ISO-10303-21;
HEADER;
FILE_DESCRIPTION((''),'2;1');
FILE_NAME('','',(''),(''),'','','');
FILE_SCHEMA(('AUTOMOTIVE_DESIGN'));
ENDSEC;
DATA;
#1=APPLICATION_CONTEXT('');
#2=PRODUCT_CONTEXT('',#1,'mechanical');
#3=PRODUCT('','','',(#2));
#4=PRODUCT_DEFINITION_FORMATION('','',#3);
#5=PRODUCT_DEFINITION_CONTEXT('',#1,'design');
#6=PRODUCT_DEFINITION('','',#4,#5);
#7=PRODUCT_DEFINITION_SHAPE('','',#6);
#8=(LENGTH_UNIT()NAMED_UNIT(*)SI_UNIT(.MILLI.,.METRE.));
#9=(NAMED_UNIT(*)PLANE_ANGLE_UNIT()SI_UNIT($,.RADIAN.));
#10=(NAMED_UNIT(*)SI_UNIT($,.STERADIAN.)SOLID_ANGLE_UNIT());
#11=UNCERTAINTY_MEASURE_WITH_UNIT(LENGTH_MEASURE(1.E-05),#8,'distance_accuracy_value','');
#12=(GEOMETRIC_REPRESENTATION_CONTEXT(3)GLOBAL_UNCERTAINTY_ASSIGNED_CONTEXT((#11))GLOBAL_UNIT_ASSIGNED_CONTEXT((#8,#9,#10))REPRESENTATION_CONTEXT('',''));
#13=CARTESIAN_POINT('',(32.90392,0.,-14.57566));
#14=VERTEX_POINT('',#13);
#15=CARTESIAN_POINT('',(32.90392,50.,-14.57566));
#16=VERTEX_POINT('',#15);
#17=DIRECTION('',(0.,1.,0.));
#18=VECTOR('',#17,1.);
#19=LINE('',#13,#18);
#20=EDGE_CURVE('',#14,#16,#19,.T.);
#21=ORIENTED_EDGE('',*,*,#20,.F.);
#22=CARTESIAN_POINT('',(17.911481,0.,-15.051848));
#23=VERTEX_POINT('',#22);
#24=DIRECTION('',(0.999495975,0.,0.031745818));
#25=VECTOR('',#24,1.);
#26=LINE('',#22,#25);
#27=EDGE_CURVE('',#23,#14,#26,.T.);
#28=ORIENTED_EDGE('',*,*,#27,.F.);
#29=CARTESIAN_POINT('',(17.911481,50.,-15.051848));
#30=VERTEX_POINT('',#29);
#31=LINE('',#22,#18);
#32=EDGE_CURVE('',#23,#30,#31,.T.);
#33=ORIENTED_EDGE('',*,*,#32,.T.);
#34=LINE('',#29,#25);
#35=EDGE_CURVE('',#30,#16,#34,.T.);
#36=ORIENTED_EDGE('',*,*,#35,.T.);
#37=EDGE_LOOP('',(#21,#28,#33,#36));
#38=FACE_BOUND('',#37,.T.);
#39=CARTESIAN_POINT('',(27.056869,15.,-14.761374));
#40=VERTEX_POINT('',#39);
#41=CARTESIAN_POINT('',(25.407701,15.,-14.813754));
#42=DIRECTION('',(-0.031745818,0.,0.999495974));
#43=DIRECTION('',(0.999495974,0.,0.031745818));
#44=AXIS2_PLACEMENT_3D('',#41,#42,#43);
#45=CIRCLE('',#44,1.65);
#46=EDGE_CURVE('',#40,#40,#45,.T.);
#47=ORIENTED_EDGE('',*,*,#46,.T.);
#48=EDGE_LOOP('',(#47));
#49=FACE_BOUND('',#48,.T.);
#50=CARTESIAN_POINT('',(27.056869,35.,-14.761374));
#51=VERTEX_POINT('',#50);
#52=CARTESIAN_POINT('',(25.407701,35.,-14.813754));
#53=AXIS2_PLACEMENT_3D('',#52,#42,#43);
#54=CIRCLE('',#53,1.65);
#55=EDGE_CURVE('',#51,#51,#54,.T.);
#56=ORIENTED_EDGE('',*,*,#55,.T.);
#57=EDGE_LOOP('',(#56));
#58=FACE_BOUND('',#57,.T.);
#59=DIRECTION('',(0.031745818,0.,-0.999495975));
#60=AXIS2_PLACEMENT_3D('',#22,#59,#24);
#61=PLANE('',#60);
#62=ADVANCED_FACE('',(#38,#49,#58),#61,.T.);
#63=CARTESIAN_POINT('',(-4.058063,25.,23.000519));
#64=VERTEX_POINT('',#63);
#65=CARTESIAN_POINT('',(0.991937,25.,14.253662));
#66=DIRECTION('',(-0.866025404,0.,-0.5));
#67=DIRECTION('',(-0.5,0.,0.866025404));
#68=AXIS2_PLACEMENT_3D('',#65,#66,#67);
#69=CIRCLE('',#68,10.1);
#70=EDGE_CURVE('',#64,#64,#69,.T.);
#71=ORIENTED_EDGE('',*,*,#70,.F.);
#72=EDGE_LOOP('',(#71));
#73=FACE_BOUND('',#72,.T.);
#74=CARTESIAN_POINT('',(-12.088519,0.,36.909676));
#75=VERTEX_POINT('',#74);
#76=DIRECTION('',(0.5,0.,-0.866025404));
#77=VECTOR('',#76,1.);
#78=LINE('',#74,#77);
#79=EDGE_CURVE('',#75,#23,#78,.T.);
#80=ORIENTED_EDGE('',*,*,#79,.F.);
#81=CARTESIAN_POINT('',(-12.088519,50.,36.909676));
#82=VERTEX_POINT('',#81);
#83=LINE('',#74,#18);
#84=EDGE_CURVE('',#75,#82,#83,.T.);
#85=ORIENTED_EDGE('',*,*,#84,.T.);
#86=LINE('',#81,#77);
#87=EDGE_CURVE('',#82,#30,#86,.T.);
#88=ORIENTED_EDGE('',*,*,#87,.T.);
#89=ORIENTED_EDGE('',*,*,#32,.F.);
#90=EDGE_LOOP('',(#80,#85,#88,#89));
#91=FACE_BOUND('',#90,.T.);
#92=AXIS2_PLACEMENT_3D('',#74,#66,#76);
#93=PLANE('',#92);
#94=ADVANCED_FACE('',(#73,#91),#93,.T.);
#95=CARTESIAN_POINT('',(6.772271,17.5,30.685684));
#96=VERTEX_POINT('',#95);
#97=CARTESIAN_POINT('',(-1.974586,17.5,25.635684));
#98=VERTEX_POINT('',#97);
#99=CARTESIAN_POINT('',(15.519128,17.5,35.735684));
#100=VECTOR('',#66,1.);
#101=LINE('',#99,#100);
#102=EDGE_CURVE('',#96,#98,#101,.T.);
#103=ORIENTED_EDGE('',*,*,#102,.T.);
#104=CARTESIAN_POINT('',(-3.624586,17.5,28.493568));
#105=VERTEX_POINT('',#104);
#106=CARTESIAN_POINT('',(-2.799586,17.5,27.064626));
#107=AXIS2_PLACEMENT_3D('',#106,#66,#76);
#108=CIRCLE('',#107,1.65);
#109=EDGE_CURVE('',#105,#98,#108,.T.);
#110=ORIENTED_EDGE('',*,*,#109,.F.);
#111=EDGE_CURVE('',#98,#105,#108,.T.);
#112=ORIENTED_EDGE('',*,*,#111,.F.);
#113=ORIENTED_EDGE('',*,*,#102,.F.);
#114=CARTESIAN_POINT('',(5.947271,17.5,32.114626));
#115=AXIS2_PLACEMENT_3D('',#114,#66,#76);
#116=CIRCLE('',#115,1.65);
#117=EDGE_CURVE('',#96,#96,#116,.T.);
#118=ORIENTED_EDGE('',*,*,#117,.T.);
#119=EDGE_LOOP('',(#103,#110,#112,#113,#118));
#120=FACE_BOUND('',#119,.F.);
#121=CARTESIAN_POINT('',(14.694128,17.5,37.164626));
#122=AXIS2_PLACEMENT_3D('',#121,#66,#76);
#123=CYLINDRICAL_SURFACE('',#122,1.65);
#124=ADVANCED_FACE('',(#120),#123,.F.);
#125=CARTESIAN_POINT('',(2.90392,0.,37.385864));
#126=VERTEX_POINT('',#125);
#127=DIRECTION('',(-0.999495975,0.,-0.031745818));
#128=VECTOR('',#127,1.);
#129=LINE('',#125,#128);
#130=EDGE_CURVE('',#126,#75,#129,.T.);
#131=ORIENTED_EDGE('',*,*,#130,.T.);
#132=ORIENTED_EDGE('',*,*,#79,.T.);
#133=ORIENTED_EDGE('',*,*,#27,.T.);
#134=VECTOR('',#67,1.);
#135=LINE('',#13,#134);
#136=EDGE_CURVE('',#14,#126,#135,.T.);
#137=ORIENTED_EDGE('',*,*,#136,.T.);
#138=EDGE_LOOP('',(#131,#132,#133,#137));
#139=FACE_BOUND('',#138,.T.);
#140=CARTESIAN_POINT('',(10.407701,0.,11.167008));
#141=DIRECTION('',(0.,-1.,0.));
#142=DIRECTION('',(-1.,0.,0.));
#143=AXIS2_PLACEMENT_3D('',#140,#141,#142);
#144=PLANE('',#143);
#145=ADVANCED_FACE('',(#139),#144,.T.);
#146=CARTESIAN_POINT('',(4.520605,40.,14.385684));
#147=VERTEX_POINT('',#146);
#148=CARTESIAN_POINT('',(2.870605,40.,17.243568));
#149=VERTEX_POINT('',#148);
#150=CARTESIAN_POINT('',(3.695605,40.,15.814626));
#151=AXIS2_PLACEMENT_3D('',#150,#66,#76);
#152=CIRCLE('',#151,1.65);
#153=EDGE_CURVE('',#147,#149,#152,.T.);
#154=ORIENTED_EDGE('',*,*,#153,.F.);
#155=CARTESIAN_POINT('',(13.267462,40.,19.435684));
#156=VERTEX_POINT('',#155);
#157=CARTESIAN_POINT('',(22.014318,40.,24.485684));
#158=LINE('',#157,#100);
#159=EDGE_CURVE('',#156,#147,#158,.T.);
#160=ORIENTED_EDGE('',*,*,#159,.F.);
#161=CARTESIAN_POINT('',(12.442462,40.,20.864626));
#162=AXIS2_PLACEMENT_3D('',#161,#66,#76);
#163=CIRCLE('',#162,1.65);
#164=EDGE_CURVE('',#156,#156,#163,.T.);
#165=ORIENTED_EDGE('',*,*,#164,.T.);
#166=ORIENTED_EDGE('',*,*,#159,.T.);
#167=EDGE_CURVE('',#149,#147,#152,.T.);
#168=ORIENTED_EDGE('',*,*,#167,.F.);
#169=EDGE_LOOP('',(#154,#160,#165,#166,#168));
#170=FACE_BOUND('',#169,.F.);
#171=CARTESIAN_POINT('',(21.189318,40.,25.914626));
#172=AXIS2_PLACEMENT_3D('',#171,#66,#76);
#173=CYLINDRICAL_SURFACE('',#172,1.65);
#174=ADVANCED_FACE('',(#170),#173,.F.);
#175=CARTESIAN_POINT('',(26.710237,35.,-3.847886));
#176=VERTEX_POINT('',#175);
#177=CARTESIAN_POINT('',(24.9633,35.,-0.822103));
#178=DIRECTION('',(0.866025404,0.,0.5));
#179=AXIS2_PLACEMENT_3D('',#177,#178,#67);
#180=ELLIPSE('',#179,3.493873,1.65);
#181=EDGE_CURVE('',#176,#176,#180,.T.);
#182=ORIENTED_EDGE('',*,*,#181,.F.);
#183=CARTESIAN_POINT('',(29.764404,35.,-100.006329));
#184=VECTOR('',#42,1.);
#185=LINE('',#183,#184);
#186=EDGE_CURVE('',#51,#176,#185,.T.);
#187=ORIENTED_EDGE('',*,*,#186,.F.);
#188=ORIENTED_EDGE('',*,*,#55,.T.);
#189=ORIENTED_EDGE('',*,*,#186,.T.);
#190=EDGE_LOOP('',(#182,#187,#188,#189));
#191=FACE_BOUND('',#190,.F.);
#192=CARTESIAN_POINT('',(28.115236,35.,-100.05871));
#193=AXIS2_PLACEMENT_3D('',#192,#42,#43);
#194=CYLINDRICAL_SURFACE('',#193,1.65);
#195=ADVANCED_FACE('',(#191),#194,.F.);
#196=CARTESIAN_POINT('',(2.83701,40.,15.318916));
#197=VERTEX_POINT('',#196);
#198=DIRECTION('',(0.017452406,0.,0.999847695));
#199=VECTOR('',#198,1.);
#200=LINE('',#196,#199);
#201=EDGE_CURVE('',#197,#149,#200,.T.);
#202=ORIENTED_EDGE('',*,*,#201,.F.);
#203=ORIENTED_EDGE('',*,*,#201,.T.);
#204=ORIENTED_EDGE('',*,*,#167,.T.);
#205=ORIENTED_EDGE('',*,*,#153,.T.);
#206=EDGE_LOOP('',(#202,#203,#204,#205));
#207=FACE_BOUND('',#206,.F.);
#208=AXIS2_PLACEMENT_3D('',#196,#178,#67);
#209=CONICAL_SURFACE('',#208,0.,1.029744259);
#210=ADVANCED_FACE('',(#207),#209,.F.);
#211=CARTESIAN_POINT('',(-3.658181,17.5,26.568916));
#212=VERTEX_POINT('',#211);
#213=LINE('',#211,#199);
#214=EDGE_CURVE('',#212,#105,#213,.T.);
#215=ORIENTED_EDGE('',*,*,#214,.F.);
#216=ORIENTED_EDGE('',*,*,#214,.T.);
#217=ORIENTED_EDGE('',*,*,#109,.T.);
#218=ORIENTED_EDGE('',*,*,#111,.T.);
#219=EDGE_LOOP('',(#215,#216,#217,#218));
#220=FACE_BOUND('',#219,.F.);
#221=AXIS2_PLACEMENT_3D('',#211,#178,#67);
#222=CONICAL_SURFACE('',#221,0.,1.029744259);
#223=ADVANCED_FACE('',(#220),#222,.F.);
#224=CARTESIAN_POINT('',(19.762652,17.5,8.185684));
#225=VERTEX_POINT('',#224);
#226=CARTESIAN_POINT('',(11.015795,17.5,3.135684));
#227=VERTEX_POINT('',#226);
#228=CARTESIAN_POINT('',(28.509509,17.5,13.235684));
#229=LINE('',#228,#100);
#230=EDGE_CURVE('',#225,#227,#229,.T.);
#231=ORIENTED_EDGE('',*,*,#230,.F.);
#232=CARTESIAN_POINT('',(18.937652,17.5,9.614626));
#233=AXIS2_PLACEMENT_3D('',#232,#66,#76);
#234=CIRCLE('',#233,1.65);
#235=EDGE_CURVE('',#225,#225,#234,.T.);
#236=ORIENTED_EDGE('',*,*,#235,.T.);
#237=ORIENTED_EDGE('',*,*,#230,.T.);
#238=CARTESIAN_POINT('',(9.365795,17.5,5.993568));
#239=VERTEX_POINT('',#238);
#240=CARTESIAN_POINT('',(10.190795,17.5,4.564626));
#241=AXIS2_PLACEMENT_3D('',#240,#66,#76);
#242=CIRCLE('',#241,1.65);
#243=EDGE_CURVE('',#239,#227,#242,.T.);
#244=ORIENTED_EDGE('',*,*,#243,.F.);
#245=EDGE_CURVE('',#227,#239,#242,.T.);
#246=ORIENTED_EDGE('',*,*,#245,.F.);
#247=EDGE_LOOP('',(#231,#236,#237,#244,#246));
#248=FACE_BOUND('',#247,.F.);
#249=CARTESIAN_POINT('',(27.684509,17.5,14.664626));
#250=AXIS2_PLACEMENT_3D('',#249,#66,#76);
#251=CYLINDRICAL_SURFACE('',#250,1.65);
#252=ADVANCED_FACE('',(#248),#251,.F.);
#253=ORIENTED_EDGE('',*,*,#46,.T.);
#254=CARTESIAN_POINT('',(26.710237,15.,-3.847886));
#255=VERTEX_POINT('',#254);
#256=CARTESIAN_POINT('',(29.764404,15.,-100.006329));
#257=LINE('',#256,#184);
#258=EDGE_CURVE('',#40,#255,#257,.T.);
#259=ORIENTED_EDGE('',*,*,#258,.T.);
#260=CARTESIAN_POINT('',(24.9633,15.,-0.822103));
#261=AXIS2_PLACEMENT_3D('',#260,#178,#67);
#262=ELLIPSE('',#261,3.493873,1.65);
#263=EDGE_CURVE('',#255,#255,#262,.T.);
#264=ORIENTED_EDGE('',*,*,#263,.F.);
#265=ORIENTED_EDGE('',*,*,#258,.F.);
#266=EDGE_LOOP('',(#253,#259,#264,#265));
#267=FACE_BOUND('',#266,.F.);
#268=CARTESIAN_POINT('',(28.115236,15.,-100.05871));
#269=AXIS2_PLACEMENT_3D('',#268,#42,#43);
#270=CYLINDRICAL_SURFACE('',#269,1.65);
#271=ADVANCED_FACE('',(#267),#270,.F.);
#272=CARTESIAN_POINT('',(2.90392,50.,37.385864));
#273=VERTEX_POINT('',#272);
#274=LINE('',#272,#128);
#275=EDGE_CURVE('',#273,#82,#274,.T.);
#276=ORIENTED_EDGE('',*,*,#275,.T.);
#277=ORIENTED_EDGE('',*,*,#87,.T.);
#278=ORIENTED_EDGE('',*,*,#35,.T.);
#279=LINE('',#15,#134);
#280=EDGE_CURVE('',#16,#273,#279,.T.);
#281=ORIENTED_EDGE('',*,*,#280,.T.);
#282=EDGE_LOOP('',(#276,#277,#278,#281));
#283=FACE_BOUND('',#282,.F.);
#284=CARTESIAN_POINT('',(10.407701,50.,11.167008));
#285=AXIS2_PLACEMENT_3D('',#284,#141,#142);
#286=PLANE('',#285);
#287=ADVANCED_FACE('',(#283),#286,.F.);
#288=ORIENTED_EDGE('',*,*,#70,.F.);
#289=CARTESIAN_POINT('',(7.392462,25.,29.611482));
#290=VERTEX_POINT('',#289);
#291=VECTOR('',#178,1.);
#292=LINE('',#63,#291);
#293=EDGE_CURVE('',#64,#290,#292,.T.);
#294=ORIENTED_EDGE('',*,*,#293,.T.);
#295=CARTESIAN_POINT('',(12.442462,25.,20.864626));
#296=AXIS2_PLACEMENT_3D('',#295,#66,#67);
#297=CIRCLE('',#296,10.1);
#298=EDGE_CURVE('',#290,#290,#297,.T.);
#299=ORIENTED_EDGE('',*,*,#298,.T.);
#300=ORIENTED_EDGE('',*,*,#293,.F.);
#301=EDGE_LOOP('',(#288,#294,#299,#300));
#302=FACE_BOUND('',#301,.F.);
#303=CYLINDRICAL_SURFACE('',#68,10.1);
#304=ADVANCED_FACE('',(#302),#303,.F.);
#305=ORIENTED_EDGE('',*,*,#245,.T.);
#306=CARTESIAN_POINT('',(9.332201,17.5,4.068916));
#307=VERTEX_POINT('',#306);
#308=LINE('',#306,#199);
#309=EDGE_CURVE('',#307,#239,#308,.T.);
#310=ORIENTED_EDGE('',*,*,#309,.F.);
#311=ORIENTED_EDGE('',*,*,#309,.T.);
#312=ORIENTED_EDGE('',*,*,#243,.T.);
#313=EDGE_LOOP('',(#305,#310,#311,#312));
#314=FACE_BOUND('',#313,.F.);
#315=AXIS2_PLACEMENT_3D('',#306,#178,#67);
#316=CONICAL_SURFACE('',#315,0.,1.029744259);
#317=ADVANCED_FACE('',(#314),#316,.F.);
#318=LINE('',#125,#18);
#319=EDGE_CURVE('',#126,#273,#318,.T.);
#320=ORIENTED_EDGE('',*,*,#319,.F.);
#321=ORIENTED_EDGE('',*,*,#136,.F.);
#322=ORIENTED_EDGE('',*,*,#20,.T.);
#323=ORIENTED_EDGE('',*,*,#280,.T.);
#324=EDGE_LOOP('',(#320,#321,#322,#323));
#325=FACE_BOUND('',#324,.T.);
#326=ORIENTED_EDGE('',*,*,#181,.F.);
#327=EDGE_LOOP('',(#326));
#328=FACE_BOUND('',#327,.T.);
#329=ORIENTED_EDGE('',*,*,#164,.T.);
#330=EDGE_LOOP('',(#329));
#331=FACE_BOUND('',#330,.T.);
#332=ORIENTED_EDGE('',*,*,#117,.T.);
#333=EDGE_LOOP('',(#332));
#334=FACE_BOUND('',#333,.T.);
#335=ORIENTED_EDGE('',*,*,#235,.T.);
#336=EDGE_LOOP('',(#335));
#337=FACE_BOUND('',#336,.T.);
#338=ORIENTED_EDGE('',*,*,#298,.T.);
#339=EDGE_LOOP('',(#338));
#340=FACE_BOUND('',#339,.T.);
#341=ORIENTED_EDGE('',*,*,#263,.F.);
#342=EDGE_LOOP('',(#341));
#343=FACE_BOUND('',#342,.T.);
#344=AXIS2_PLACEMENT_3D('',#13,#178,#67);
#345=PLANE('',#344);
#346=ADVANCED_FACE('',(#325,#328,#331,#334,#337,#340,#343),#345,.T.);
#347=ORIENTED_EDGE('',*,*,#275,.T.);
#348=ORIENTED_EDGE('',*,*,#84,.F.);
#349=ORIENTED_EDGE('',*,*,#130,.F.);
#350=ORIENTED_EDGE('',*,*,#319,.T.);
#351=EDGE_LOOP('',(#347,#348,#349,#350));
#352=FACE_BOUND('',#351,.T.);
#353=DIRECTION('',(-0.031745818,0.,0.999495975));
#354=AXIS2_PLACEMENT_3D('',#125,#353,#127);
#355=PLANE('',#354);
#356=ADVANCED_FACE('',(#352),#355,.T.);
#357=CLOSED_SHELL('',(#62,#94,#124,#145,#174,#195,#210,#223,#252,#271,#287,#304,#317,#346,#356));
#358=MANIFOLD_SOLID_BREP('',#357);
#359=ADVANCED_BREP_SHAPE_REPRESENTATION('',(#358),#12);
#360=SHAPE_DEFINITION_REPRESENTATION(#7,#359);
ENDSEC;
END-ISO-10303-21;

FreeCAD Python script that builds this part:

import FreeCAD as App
import Part
import Sketcher

V = App.Vector
Q = App.Units.Quantity


def add_polygon(sketch, points):
    """Adds a closed chain of lines whose ends are joined by coincident constraints."""
    first, n = sketch.GeometryCount, len(points)
    for a, b in zip(points, points[1:] + points[:1]):
        sketch.addGeometry(Part.LineSegment(App.Vector(*a, 0), App.Vector(*b, 0)), False)
    for i in range(n):
        sketch.addConstraint(Sketcher.Constraint("Coincident", first + i, 2, first + (i + 1) % n, 1))

doc = App.newDocument("Part")
params = doc.addObject("Spreadsheet::Sheet", "Params")
for row, (alias, value) in enumerate([
    ("sketch1_length", "60 mm"),
    ("sketch1_length2", "15 mm"),
    ("pad1_length", "50 mm"),
    ("sketch2_diameter", "3.3 mm"),
    ("hole_diameter", "3.3 mm"),
    ("hole_depth", "10.1 mm"),
    ("sketch3_diameter", "20.2 mm"),
    ("pocket1_length", "50 mm"),
    ("sketch4_diameter", "3.3 mm"),
    ("hole2_diameter", "3.3 mm"),
], start=1):
    params.set(f"A{row}", alias)
    params.set(f"B{row}", "=" + value)
    params.setAlias(f"B{row}", alias)

body = doc.addObject("PartDesign::Body", "Body")

# Sketch on XZ plane
sketch1 = doc.addObject("Sketcher::SketchObject", "Sketch")
body.addObject(sketch1)
sketch1.AttachmentSupport = (doc.XZ_Plane, [""])
sketch1.MapMode = "FlatFace"
add_polygon(sketch1, [(17.911481, -15.051848), (-12.088519, 36.909676), (2.90392, 37.385864), (32.90392, -14.57566)])  # lines 0-3
sketch1.addConstraint([
    Sketcher.Constraint("Parallel", 0, 2),
    Sketcher.Constraint("Parallel", 1, 3),
    Sketcher.Constraint("Angle", 0, Q("120 deg")),
    Sketcher.Constraint("Distance", 0, 60.0),
    Sketcher.Constraint("Distance", 1, 15.0),
    Sketcher.Constraint("DistanceX", 0, 2, -1, 1, 12.088519),
    Sketcher.Constraint("DistanceX", -1, 1, 1, 2, 2.90392),
    Sketcher.Constraint("DistanceY", 2, 2, -1, 1, 14.57566),
])
sketch1.setExpression("Constraints[7]", "Params.sketch1_length")
sketch1.setExpression("Constraints[8]", "Params.sketch1_length2")
pad1 = doc.addObject("PartDesign::Pad", "Pad")
body.addObject(pad1)
pad1.Profile = sketch1
pad1.setExpression("Length", "Params.pad1_length")
pad1.Reversed = True

# Sketch on an angled plane
sketch2 = doc.addObject("Sketcher::SketchObject", "Sketch001")
body.addObject(sketch2)
sketch2.Placement = App.Placement(V(18.366494, 0, 10.6039), App.Rotation(V(-0.5, 0, 0.866025404), V(0, -1, 0), V(0.866025404, 0, 0.5), "ZXY"))
sketch2.addGeometry([
    Part.Circle(V(-1.142316, -17.5, 0), V(0, 0, 1), 1.65),
    Part.Circle(V(11.848065, -40, 0), V(0, 0, 1), 1.65),
    Part.Circle(V(24.838446, -17.5, 0), V(0, 0, 1), 1.65),
], False)
sketch2.addConstraint([
    Sketcher.Constraint("Equal", 0, 1),
    Sketcher.Constraint("Equal", 1, 2),
    Sketcher.Constraint("Horizontal", 0, 3, 2, 3),
    Sketcher.Constraint("Diameter", 0, 3.3),
    Sketcher.Constraint("DistanceY", 1, 3, -1, 1, 40.0),
    Sketcher.Constraint("DistanceY", 0, 3, -1, 1, 17.5),
    Sketcher.Constraint("DistanceX", 0, 3, 1, 3, 12.990381),
    Sketcher.Constraint("DistanceX", 1, 3, 2, 3, 12.990381),
    Sketcher.Constraint("DistanceX", 0, 3, -1, 1, 1.142316),
])
sketch2.setExpression("Constraints[3]", "Params.sketch2_diameter")
doc.recompute()
hole = doc.addObject("PartDesign::Hole", "Hole")
body.addObject(hole)
hole.Profile = sketch2
hole.ThreadType = "None"
hole.setExpression("Diameter", "Params.hole_diameter")
hole.DepthType = "Dimension"
hole.setExpression("Depth", "Params.hole_depth")
hole.DrillPoint = "Angled"
hole.DrillPointAngle = 118

# Sketch on an angled plane
sketch3 = doc.addObject("Sketcher::SketchObject", "Sketch002")
body.addObject(sketch3)
sketch3.Placement = App.Placement(V(-1.40468, 0, 18.404724), App.Rotation(V(-0.5, 0, 0.866025404), V(0, 1, 0), V(-0.866025404, 0, -0.5), "ZXY"))
sketch3.addGeometry(Part.Circle(V(-4.793233, 25, 0), V(0, 0, 1), 10.1), False)
sketch3.addConstraint([
    Sketcher.Constraint("Diameter", 0, 20.2),
    Sketcher.Constraint("DistanceY", -1, 1, 0, 3, 25.0),
    Sketcher.Constraint("DistanceX", 0, 3, -1, 1, 4.793233),
])
sketch3.setExpression("Constraints[0]", "Params.sketch3_diameter")
pocket1 = doc.addObject("PartDesign::Pocket", "Pocket")
body.addObject(pocket1)
pocket1.Profile = sketch3
pocket1.setExpression("Length", "Params.pocket1_length")

# Sketch on an angled plane
sketch4 = doc.addObject("Sketcher::SketchObject", "Sketch003")
body.addObject(sketch4)
sketch4.Placement = App.Placement(V(0.495644, 0, -15.605007), App.Rotation(V(-0.999495974, 0, -0.031745818), V(0, 0.999999999, 0), V(0.031745818, 0, -0.999495974), "ZXY"))
sketch4.addGeometry([
    Part.Circle(V(-24.92462, 35, 0), V(0, 0, 1), 1.65),
    Part.Circle(V(-24.92462, 15, 0), V(0, 0, 1), 1.65),
], False)
sketch4.addConstraint([
    Sketcher.Constraint("Equal", 0, 1),
    Sketcher.Constraint("Vertical", 0, 3, 1, 3),
    Sketcher.Constraint("Diameter", 0, 3.3),
    Sketcher.Constraint("DistanceY", -1, 1, 0, 3, 35.0),
    Sketcher.Constraint("DistanceY", -1, 1, 1, 3, 15.0),
    Sketcher.Constraint("DistanceX", 0, 3, -1, 1, 24.92462),
])
sketch4.setExpression("Constraints[2]", "Params.sketch4_diameter")
doc.recompute()
hole2 = doc.addObject("PartDesign::Hole", "Hole001")
body.addObject(hole2)
hole2.Profile = sketch4
hole2.ThreadType = "None"
hole2.setExpression("Diameter", "Params.hole2_diameter")
hole2.DepthType = "ThroughAll"

doc.recompute()
